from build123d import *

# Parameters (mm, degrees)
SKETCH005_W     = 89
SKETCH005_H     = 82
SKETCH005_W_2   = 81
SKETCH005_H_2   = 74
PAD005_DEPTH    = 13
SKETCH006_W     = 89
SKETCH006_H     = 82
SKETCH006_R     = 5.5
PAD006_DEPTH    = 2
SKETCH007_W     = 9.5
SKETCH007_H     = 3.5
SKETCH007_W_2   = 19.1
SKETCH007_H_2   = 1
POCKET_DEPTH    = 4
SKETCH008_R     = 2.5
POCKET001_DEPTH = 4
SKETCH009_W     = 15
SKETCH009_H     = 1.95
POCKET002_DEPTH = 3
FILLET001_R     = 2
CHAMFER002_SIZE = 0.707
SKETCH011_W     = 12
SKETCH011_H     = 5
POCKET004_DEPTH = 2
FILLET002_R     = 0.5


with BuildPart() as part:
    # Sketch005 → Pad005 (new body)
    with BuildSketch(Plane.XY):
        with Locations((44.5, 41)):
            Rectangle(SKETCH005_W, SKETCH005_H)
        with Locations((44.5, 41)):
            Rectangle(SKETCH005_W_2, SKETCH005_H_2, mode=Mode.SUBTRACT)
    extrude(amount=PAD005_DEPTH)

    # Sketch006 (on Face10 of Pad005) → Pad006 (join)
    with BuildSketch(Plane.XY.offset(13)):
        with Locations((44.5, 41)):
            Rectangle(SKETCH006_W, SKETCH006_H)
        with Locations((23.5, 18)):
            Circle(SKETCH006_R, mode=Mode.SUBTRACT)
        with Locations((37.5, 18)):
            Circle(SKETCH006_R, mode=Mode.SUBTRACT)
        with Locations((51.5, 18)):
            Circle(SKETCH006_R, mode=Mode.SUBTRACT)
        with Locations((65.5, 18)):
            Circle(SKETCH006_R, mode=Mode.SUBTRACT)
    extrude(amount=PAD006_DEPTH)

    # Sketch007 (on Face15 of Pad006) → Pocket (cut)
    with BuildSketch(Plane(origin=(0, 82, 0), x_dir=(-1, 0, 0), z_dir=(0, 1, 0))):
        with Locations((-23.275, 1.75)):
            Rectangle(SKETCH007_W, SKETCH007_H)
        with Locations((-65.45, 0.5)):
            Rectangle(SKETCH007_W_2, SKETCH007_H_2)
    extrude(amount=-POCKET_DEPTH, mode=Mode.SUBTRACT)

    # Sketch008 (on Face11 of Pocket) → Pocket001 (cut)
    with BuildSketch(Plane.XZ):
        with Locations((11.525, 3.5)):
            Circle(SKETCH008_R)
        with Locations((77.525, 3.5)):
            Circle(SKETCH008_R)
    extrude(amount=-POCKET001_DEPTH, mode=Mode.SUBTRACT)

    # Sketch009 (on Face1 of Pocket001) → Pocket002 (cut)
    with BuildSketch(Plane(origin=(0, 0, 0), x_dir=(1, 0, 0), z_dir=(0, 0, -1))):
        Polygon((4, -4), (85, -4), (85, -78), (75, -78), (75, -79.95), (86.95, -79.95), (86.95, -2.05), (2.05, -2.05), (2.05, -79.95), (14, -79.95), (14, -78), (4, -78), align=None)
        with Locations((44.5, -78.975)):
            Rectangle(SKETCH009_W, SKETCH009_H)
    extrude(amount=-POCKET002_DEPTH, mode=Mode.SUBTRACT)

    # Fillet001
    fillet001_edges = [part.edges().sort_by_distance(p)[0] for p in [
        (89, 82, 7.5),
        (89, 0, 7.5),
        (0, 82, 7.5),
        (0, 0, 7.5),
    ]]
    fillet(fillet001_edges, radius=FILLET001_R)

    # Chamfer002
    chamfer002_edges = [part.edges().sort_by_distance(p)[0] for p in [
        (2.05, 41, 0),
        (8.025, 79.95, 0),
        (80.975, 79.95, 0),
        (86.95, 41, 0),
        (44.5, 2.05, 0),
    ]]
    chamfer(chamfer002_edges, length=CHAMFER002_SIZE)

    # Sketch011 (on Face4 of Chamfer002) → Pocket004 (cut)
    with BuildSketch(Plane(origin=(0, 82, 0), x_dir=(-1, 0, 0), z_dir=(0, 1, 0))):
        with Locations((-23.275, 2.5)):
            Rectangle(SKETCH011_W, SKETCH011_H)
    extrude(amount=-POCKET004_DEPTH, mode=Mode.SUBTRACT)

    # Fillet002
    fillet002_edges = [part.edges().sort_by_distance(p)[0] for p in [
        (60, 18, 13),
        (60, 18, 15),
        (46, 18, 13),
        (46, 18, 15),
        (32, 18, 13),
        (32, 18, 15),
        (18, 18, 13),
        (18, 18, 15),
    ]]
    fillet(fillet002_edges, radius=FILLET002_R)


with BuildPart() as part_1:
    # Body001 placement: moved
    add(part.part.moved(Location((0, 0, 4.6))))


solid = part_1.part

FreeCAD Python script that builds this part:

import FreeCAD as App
import Part
import Sketcher


def edges_at(feature, points):
    """Names of the edges that pass closest to the given points."""
    edges = feature.Shape.Edges
    near = lambda p: min(range(len(edges)), key=lambda i: edges[i].distToShape(Part.Vertex(*p))[0])
    return sorted({f"Edge{near(p) + 1}" for p in points})

doc = App.newDocument("Part")
body = doc.addObject("PartDesign::Body", "Body")

# Sketch on XY plane
sketch1 = doc.addObject("Sketcher::SketchObject", "Sketch")
body.addObject(sketch1)
sketch1.AttachmentSupport = (doc.XY_Plane, [""])
sketch1.MapMode = "FlatFace"
sketch1.addGeometry([
    Part.LineSegment(App.Vector(0, 82, 0), App.Vector(0, 0, 0)),  # 0
    Part.LineSegment(App.Vector(0, 0, 0), App.Vector(89, 0, 0)),  # 1
    Part.LineSegment(App.Vector(89, 0, 0), App.Vector(89, 82, 0)),  # 2
    Part.LineSegment(App.Vector(89, 82, 0), App.Vector(0, 82, 0)),  # 3
    Part.LineSegment(App.Vector(85, 4, 0), App.Vector(4, 4, 0)),  # 4
    Part.LineSegment(App.Vector(4, 4, 0), App.Vector(4, 78, 0)),  # 5
    Part.LineSegment(App.Vector(4, 78, 0), App.Vector(85, 78, 0)),  # 6
    Part.LineSegment(App.Vector(85, 78, 0), App.Vector(85, 4, 0)),  # 7
], False)
sketch1.addConstraint([
    Sketcher.Constraint("Coincident", 0, 2, 1, 1),
    Sketcher.Constraint("Coincident", 1, 2, 2, 1),
    Sketcher.Constraint("Coincident", 2, 2, 3, 1),
    Sketcher.Constraint("Coincident", 3, 2, 0, 1),
    Sketcher.Constraint("Coincident", 4, 2, 5, 1),
    Sketcher.Constraint("Coincident", 5, 2, 6, 1),
    Sketcher.Constraint("Coincident", 6, 2, 7, 1),
    Sketcher.Constraint("Coincident", 7, 2, 4, 1),
    Sketcher.Constraint("Vertical", 0),
    Sketcher.Constraint("Horizontal", 1),
    Sketcher.Constraint("Vertical", 2),
    Sketcher.Constraint("Horizontal", 3),
    Sketcher.Constraint("Horizontal", 4),
    Sketcher.Constraint("Vertical", 5),
    Sketcher.Constraint("Horizontal", 6),
    Sketcher.Constraint("Vertical", 7),
    Sketcher.Constraint("Coincident", 0, 2, -1, 1),
    Sketcher.Constraint("DistanceX", 1, 1, 1, 2, 89.0),
    Sketcher.Constraint("DistanceX", 4, 2, 4, 1, 81.0),
    Sketcher.Constraint("DistanceY", 0, 2, 0, 1, 82.0),
    Sketcher.Constraint("DistanceY", 5, 1, 5, 2, 74.0),
    Sketcher.Constraint("DistanceX", -1, 1, 4, 2, 4.0),
    Sketcher.Constraint("DistanceY", -1, 1, 4, 2, 4.0),
])
pad1 = doc.addObject("PartDesign::Pad", "Pad")
body.addObject(pad1)
pad1.Profile = sketch1
pad1.Length = 13

# Sketch on XY plane
sketch2 = doc.addObject("Sketcher::SketchObject", "Sketch001")
body.addObject(sketch2)
sketch2.AttachmentSupport = (doc.XY_Plane, [""])
sketch2.MapMode = "FlatFace"
sketch2.AttachmentOffset = App.Placement(App.Vector(0, 0, 13), App.Rotation())
sketch2.addGeometry([
    Part.LineSegment(App.Vector(0, 82, 0), App.Vector(0, 0, 0)),  # 0
    Part.LineSegment(App.Vector(0, 0, 0), App.Vector(89, 0, 0)),  # 1
    Part.LineSegment(App.Vector(89, 0, 0), App.Vector(89, 82, 0)),  # 2
    Part.LineSegment(App.Vector(89, 82, 0), App.Vector(0, 82, 0)),  # 3
    Part.Circle(App.Vector(24, 18, 0), App.Vector(0, 0, 1), 6),  # 4
    Part.Circle(App.Vector(38, 18, 0), App.Vector(0, 0, 1), 6),  # 5
    Part.Circle(App.Vector(52, 18, 0), App.Vector(0, 0, 1), 6),  # 6
    Part.Circle(App.Vector(66, 18, 0), App.Vector(0, 0, 1), 6),  # 7
], False)
sketch2.addConstraint([
    Sketcher.Constraint("Coincident", 0, 2, 1, 1),
    Sketcher.Constraint("Coincident", 1, 2, 2, 1),
    Sketcher.Constraint("Coincident", 2, 2, 3, 1),
    Sketcher.Constraint("Coincident", 3, 2, 0, 1),
    Sketcher.Constraint("Vertical", 0),
    Sketcher.Constraint("Horizontal", 1),
    Sketcher.Constraint("Vertical", 2),
    Sketcher.Constraint("Horizontal", 3),
    Sketcher.Constraint("Coincident", 0, 2, -1, 1),
    Sketcher.Constraint("Equal", 4, 5),
    Sketcher.Constraint("Equal", 5, 6),
    Sketcher.Constraint("Equal", 6, 7),
    Sketcher.Constraint("Horizontal", 4, 3, 5, 3),
    Sketcher.Constraint("Horizontal", 5, 3, 6, 3),
    Sketcher.Constraint("Horizontal", 6, 3, 7, 3),
    Sketcher.Constraint("Diameter", 4, 11.0),
    Sketcher.Constraint("DistanceX", 1, 1, 1, 2, 89.0),
    Sketcher.Constraint("DistanceY", 0, 2, 0, 1, 82.0),
    Sketcher.Constraint("DistanceY", -1, 1, 4, 3, 18.0),
    Sketcher.Constraint("DistanceX", 4, 3, 5, 3, 14.0),
    Sketcher.Constraint("DistanceX", 5, 3, 6, 3, 14.0),
    Sketcher.Constraint("DistanceX", 6, 3, 7, 3, 14.0),
    Sketcher.Constraint("DistanceX", -1, 1, 4, 3, 23.5),
])
pad2 = doc.addObject("PartDesign::Pad", "Pad001")
body.addObject(pad2)
pad2.Profile = sketch2
pad2.Length = 2

# Sketch on XZ plane
sketch3 = doc.addObject("Sketcher::SketchObject", "Sketch002")
body.addObject(sketch3)
sketch3.AttachmentSupport = (doc.XZ_Plane, [""])
sketch3.MapMode = "FlatFace"
sketch3.AttachmentOffset = App.Placement(App.Vector(0, 0, -82), App.Rotation())
sketch3.addGeometry([
    Part.LineSegment(App.Vector(28, 3.5, 0), App.Vector(28, 0, 0)),  # 0
    Part.LineSegment(App.Vector(28, 0, 0), App.Vector(18.5, 0, 0)),  # 1
    Part.LineSegment(App.Vector(18.5, 0, 0), App.Vector(18.5, 3.5, 0)),  # 2
    Part.LineSegment(App.Vector(18.5, 3.5, 0), App.Vector(28, 3.5, 0)),  # 3
    Part.LineSegment(App.Vector(75, 1, 0), App.Vector(75, 0, 0)),  # 4
    Part.LineSegment(App.Vector(75, 0, 0), App.Vector(55.9, 0, 0)),  # 5
    Part.LineSegment(App.Vector(55.9, 0, 0), App.Vector(55.9, 1, 0)),  # 6
    Part.LineSegment(App.Vector(55.9, 1, 0), App.Vector(75, 1, 0)),  # 7
], False)
sketch3.addConstraint([
    Sketcher.Constraint("Coincident", 0, 2, 1, 1),
    Sketcher.Constraint("Coincident", 1, 2, 2, 1),
    Sketcher.Constraint("Coincident", 2, 2, 3, 1),
    Sketcher.Constraint("Coincident", 3, 2, 0, 1),
    Sketcher.Constraint("Coincident", 4, 2, 5, 1),
    Sketcher.Constraint("Coincident", 5, 2, 6, 1),
    Sketcher.Constraint("Coincident", 6, 2, 7, 1),
    Sketcher.Constraint("Coincident", 7, 2, 4, 1),
    Sketcher.Constraint("Vertical", 0),
    Sketcher.Constraint("Horizontal", 1),
    Sketcher.Constraint("Vertical", 2),
    Sketcher.Constraint("Horizontal", 3),
    Sketcher.Constraint("Vertical", 4),
    Sketcher.Constraint("Horizontal", 5),
    Sketcher.Constraint("Vertical", 6),
    Sketcher.Constraint("Horizontal", 7),
    Sketcher.Constraint("PointOnObject", 0, 2, -1),
    Sketcher.Constraint("PointOnObject", 4, 2, -1),
    Sketcher.Constraint("DistanceY", 4, 2, 4, 1, 1.0),
    Sketcher.Constraint("DistanceX", 1, 2, 1, 1, 9.5),
    Sketcher.Constraint("DistanceX", 5, 2, 5, 1, 19.1),
    Sketcher.Constraint("DistanceY", 0, 2, 0, 1, 3.5),
    Sketcher.Constraint("DistanceX", -1, 1, 4, 2, 75.0),
    Sketcher.Constraint("DistanceX", -1, 1, 0, 2, 28.025),
])
pocket1 = doc.addObject("PartDesign::Pocket", "Pocket")
body.addObject(pocket1)
pocket1.Profile = sketch3
pocket1.Length = 4
pocket1.Reversed = True

# Sketch on XZ plane
sketch4 = doc.addObject("Sketcher::SketchObject", "Sketch003")
body.addObject(sketch4)
sketch4.AttachmentSupport = (doc.XZ_Plane, [""])
sketch4.MapMode = "FlatFace"
sketch4.addGeometry([
    Part.Circle(App.Vector(11.5, 3.5, 0), App.Vector(0, 0, 1), 2.5),
    Part.Circle(App.Vector(77.5, 3.5, 0), App.Vector(0, 0, 1), 2.5),
], False)
sketch4.addConstraint([
    Sketcher.Constraint("Equal", 0, 1),
    Sketcher.Constraint("Horizontal", 0, 3, 1, 3),
    Sketcher.Constraint("Diameter", 0, 5.0),
    Sketcher.Constraint("DistanceX", 0, 3, 1, 3, 66.0),
    Sketcher.Constraint("DistanceY", -1, 1, 0, 3, 3.5),
    Sketcher.Constraint("DistanceX", -1, 1, 0, 3, 11.525),
])
pocket2 = doc.addObject("PartDesign::Pocket", "Pocket001")
body.addObject(pocket2)
pocket2.Profile = sketch4
pocket2.Length = 4

# Sketch on XY plane
sketch5 = doc.addObject("Sketcher::SketchObject", "Sketch004")
body.addObject(sketch5)
sketch5.AttachmentSupport = (doc.XY_Plane, [""])
sketch5.MapMode = "FlatFace"
sketch5.addGeometry([
    Part.LineSegment(App.Vector(4, 4, 0), App.Vector(85, 4, 0)),  # 0
    Part.LineSegment(App.Vector(85, 4, 0), App.Vector(85, 78, 0)),  # 1
    Part.LineSegment(App.Vector(85, 78, 0), App.Vector(75, 78, 0)),  # 2
    Part.LineSegment(App.Vector(75, 78, 0), App.Vector(75, 80, 0)),  # 3
    Part.LineSegment(App.Vector(75, 80, 0), App.Vector(87, 80, 0)),  # 4
    Part.LineSegment(App.Vector(87, 80, 0), App.Vector(87, 2, 0)),  # 5
    Part.LineSegment(App.Vector(87, 2, 0), App.Vector(2, 2, 0)),  # 6
    Part.LineSegment(App.Vector(2, 2, 0), App.Vector(2, 80, 0)),  # 7
    Part.LineSegment(App.Vector(2, 80, 0), App.Vector(14, 80, 0)),  # 8
    Part.LineSegment(App.Vector(14, 80, 0), App.Vector(14, 78, 0)),  # 9
    Part.LineSegment(App.Vector(14, 78, 0), App.Vector(4, 78, 0)),  # 10
    Part.LineSegment(App.Vector(4, 78, 0), App.Vector(4, 4, 0)),  # 11
    Part.LineSegment(App.Vector(37, 78, 0), App.Vector(37, 80, 0)),  # 12
    Part.LineSegment(App.Vector(37, 80, 0), App.Vector(52, 80, 0)),  # 13
    Part.LineSegment(App.Vector(52, 80, 0), App.Vector(52, 78, 0)),  # 14
    Part.LineSegment(App.Vector(52, 78, 0), App.Vector(37, 78, 0)),  # 15
], False)
sketch5.addConstraint([
    Sketcher.Constraint("Coincident", 0, 2, 1, 1),
    Sketcher.Constraint("Coincident", 1, 2, 2, 1),
    Sketcher.Constraint("Coincident", 2, 2, 3, 1),
    Sketcher.Constraint("Coincident", 3, 2, 4, 1),
    Sketcher.Constraint("Coincident", 4, 2, 5, 1),
    Sketcher.Constraint("Coincident", 5, 2, 6, 1),
    Sketcher.Constraint("Coincident", 6, 2, 7, 1),
    Sketcher.Constraint("Coincident", 7, 2, 8, 1),
    Sketcher.Constraint("Coincident", 8, 2, 9, 1),
    Sketcher.Constraint("Coincident", 9, 2, 10, 1),
    Sketcher.Constraint("Coincident", 10, 2, 11, 1),
    Sketcher.Constraint("Coincident", 11, 2, 0, 1),
    Sketcher.Constraint("Coincident", 12, 2, 13, 1),
    Sketcher.Constraint("Coincident", 13, 2, 14, 1),
    Sketcher.Constraint("Coincident", 14, 2, 15, 1),
    Sketcher.Constraint("Coincident", 15, 2, 12, 1),
    Sketcher.Constraint("Horizontal", 0),
    Sketcher.Constraint("Vertical", 1),
    Sketcher.Constraint("Horizontal", 2),
    Sketcher.Constraint("Vertical", 3),
    Sketcher.Constraint("Horizontal", 4),
    Sketcher.Constraint("Vertical", 5),
    Sketcher.Constraint("Horizontal", 6),
    Sketcher.Constraint("Vertical", 7),
    Sketcher.Constraint("Horizontal", 8),
    Sketcher.Constraint("Vertical", 9),
    Sketcher.Constraint("Horizontal", 10),
    Sketcher.Constraint("Vertical", 11),
    Sketcher.Constraint("Vertical", 12),
    Sketcher.Constraint("Horizontal", 13),
    Sketcher.Constraint("Vertical", 14),
    Sketcher.Constraint("Horizontal", 15),
    Sketcher.Constraint("Horizontal", 4, 2, 7, 2),
    Sketcher.Constraint("Horizontal", 2, 2, 9, 2),
    Sketcher.Constraint("Horizontal", 8, 2, 12, 2),
    Sketcher.Constraint("Horizontal", 10, 2, 14, 2),
    Sketcher.Constraint("Equal", 4, 8),
    Sketcher.Constraint("Equal", 2, 10),
    Sketcher.Constraint("DistanceX", 0, 1, 0, 2, 81.0),
    Sketcher.Constraint("DistanceX", 2, 2, 2, 1, 10.0),
    Sketcher.Constraint("DistanceX", 13, 1, 13, 2, 15.0),
    Sketcher.Constraint("DistanceY", 1, 1, 1, 2, 74.0),
    Sketcher.Constraint("DistanceX", 6, 2, 6, 1, 84.9),
    Sketcher.Constraint("DistanceY", 5, 2, 5, 1, 77.9),
    Sketcher.Constraint("DistanceX", -1, 1, 0, 2, 85.0),
    Sketcher.Constraint("DistanceY", -1, 1, 0, 2, 4.0),
    Sketcher.Constraint("DistanceX", -1, 1, 12, 2, 37.0),
    Sketcher.Constraint("DistanceY", 3, 1, 3, 2, 1.95),
])
pocket3 = doc.addObject("PartDesign::Pocket", "Pocket002")
body.addObject(pocket3)
pocket3.Profile = sketch5
pocket3.Length = 3
pocket3.Reversed = True
doc.recompute()

fillet = doc.addObject("PartDesign::Fillet", "Fillet")
body.addObject(fillet)
fillet.Base = (pocket3, edges_at(pocket3, [
    (89, 82, 7.5),
    (89, 0, 7.5),
    (0, 82, 7.5),
    (0, 0, 7.5),
]))
fillet.Radius = 2
doc.recompute()

chamfer = doc.addObject("PartDesign::Chamfer", "Chamfer")
body.addObject(chamfer)
chamfer.Base = (fillet, edges_at(fillet, [
    (2.05, 41, 0),
    (8.025, 79.95, 0),
    (80.975, 79.95, 0),
    (86.95, 41, 0),
    (44.5, 2.05, 0),
]))
chamfer.Size = 0.707

# Sketch on XZ plane
sketch6 = doc.addObject("Sketcher::SketchObject", "Sketch005")
body.addObject(sketch6)
sketch6.AttachmentSupport = (doc.XZ_Plane, [""])
sketch6.MapMode = "FlatFace"
sketch6.AttachmentOffset = App.Placement(App.Vector(0, 0, -82), App.Rotation())
sketch6.addGeometry([
    Part.LineSegment(App.Vector(29, 5, 0), App.Vector(29, 0, 0)),
    Part.LineSegment(App.Vector(29, 0, 0), App.Vector(17, 0, 0)),
    Part.LineSegment(App.Vector(17, 0, 0), App.Vector(17, 5, 0)),
    Part.LineSegment(App.Vector(17, 5, 0), App.Vector(29, 5, 0)),
], False)
sketch6.addConstraint([
    Sketcher.Constraint("Coincident", 0, 2, 1, 1),
    Sketcher.Constraint("Coincident", 1, 2, 2, 1),
    Sketcher.Constraint("Coincident", 2, 2, 3, 1),
    Sketcher.Constraint("Coincident", 3, 2, 0, 1),
    Sketcher.Constraint("Vertical", 0),
    Sketcher.Constraint("Horizontal", 1),
    Sketcher.Constraint("Vertical", 2),
    Sketcher.Constraint("Horizontal", 3),
    Sketcher.Constraint("PointOnObject", 0, 2, -1),
    Sketcher.Constraint("DistanceX", 1, 2, 1, 1, 12.0),
    Sketcher.Constraint("DistanceY", 0, 2, 0, 1, 5.0),
    Sketcher.Constraint("DistanceX", -1, 1, 0, 2, 29.275),
])
pocket4 = doc.addObject("PartDesign::Pocket", "Pocket003")
body.addObject(pocket4)
pocket4.Profile = sketch6
pocket4.Length = 2
pocket4.Reversed = True
doc.recompute()

fillet2 = doc.addObject("PartDesign::Fillet", "Fillet001")
body.addObject(fillet2)
fillet2.Base = (pocket4, edges_at(pocket4, [
    (60, 18, 13),
    (60, 18, 15),
    (46, 18, 13),
    (46, 18, 15),
    (32, 18, 13),
    (32, 18, 15),
    (18, 18, 13),
    (18, 18, 15),
]))
fillet2.Radius = 0.5
body2 = doc.addObject("PartDesign::Body", "Body001")
doc.recompute()

body.Placement = App.Placement(App.Vector(0, 0, 4.6), App.Rotation(App.Vector(0, 0, 1), 0))
boolean = doc.addObject("PartDesign::Boolean", "Boolean")
body2.addObject(boolean)
boolean.Type = "Fuse"
boolean.addObjects([body])

doc.recompute()
